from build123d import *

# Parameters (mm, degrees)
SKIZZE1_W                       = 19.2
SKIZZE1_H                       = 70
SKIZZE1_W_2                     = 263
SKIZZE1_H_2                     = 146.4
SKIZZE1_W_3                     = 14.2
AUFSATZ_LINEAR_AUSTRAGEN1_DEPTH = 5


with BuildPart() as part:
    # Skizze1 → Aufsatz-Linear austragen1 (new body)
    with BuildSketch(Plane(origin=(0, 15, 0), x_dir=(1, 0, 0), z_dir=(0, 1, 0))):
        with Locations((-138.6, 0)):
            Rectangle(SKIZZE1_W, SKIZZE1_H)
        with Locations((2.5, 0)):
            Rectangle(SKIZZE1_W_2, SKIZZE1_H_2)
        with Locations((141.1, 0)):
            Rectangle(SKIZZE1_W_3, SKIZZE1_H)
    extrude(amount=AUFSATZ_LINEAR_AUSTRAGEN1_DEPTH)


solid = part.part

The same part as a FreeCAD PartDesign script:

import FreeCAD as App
import Part
import Sketcher
Q = App.Units.Quantity


def add_polygon(sketch, points):
    """Adds a closed chain of lines whose ends are joined by coincident constraints."""
    first, n = sketch.GeometryCount, len(points)
    for a, b in zip(points, points[1:] + points[:1]):
        sketch.addGeometry(Part.LineSegment(App.Vector(*a, 0), App.Vector(*b, 0)), False)
    for i in range(n):
        sketch.addConstraint(Sketcher.Constraint("Coincident", first + i, 2, first + (i + 1) % n, 1))

doc = App.newDocument("Part")
body = doc.addObject("PartDesign::Body", "Body")

sketch1 = body.newObject("Sketcher::SketchObject", "Sketch")
sketch1.AttachmentSupport = (doc.getObject("XZ_Plane"), [""])
sketch1.MapMode = "FlatFace"
sketch1.AttachmentOffset = App.Placement(App.Vector(0, 0, -15), App.Rotation())
add_polygon(sketch1, [(-148.2, -35), (-148.2, 35), (-129, 35), (-129, 73.2), (134, 73.2), (134, 35), (148.2, 35), (148.2, -35), (134, -35), (134, -73.2), (-129, -73.2), (-129, -35)])
sketch1.addConstraint(Sketcher.Constraint("Vertical", 0))
sketch1.addConstraint(Sketcher.Constraint("Horizontal", 1))
sketch1.addConstraint(Sketcher.Constraint("Vertical", 2))
sketch1.addConstraint(Sketcher.Constraint("Horizontal", 3))
sketch1.addConstraint(Sketcher.Constraint("Vertical", 4))
sketch1.addConstraint(Sketcher.Constraint("Horizontal", 5))
sketch1.addConstraint(Sketcher.Constraint("Vertical", 6))
sketch1.addConstraint(Sketcher.Constraint("Horizontal", 7))
sketch1.addConstraint(Sketcher.Constraint("Vertical", 8))
sketch1.addConstraint(Sketcher.Constraint("Horizontal", 9))
sketch1.addConstraint(Sketcher.Constraint("Vertical", 10))
sketch1.addConstraint(Sketcher.Constraint("Horizontal", 11))
sketch1.addConstraint(Sketcher.Constraint("Symmetric", 0, 2, 6, 2, -1, 1))
sketch1.addConstraint(Sketcher.Constraint("Symmetric", 4, 2, 7, 2, -1))
sketch1.addConstraint(Sketcher.Constraint("Symmetric", 2, 2, 9, 2, -1))
sketch1.addConstraint(Sketcher.Constraint("Horizontal", 7, 2, 10, 2))
sketch1.addConstraint(Sketcher.Constraint("DistanceX", 3, 1, 3, 2, Q("263 mm")))
sketch1.addConstraint(Sketcher.Constraint("DistanceY", 0, 1, 0, 2, Q("70 mm")))
sketch1.addConstraint(Sketcher.Constraint("DistanceX", 1, 1, 1, 2, Q("19.2 mm")))
sketch1.addConstraint(Sketcher.Constraint("DistanceX", 5, 1, 5, 2, Q("14.2 mm")))
sketch1.addConstraint(Sketcher.Constraint("DistanceY", 2, 1, 2, 2, Q("38.2 mm")))
pad1 = body.newObject("PartDesign::Pad", "Pad")
pad1.Profile = sketch1
pad1.Length = 5
pad1.Reversed = True

doc.recompute()
